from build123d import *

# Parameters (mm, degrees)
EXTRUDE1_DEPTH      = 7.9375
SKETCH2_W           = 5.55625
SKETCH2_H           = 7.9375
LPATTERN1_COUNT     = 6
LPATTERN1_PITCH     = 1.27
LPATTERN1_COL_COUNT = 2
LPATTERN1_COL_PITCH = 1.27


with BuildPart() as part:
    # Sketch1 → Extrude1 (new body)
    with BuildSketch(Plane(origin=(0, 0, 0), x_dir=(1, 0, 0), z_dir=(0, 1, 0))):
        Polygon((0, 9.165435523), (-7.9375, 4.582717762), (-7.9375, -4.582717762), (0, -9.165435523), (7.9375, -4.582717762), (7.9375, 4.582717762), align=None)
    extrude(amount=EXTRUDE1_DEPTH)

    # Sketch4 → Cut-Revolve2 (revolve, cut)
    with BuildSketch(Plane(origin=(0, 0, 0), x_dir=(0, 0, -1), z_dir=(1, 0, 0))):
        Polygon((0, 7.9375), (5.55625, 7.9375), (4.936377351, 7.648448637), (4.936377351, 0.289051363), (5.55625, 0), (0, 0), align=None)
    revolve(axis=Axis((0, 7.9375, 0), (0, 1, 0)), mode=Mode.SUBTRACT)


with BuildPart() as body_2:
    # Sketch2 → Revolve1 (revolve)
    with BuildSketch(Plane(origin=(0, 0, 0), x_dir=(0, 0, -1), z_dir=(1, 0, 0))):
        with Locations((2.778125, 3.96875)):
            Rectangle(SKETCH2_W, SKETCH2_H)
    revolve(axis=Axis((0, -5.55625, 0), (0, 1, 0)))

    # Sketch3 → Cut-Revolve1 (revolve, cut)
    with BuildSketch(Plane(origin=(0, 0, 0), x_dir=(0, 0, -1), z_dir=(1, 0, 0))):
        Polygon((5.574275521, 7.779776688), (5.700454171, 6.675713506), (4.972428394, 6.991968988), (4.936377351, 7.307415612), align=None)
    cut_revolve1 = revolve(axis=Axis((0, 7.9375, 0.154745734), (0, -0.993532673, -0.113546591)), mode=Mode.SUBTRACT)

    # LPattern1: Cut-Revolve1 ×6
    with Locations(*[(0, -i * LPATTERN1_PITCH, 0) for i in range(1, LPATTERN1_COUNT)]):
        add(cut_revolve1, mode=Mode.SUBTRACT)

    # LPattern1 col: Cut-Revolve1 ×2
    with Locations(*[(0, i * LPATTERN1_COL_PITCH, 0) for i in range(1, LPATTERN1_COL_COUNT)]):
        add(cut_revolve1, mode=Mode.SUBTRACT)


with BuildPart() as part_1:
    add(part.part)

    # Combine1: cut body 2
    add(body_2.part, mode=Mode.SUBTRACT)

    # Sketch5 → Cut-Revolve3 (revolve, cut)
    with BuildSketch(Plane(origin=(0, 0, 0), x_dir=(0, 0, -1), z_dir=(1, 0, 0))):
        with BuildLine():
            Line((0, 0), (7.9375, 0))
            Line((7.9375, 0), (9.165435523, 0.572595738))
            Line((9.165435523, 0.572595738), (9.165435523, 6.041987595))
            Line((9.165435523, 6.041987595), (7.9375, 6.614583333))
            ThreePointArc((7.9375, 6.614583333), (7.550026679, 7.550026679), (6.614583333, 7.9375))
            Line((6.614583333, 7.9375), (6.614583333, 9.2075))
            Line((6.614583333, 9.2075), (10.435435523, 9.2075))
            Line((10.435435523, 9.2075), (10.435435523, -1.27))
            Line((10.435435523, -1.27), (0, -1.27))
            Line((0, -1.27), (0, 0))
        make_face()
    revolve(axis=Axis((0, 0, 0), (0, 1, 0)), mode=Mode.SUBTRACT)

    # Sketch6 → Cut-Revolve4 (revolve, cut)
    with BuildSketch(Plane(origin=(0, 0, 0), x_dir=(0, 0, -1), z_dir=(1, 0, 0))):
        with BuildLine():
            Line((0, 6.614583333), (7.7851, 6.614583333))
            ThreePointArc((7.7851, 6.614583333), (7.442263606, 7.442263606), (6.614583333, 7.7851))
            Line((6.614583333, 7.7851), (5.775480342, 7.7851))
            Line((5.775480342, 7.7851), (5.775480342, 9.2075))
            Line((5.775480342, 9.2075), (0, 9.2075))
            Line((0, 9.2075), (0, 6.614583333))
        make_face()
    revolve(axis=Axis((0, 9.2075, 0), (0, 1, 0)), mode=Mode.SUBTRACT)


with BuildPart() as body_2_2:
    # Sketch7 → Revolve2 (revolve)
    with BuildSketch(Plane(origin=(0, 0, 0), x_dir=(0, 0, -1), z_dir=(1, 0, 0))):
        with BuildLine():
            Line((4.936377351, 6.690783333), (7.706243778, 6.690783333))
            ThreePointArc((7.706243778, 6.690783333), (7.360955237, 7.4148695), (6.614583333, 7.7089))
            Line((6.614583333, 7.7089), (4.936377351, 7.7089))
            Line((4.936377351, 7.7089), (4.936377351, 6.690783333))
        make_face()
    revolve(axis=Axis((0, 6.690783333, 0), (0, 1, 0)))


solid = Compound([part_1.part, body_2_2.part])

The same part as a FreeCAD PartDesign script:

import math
import FreeCAD as App
import Part
import Sketcher

V = App.Vector
Q = App.Units.Quantity


def add_polygon(sketch, points):
    """Adds a closed chain of lines whose ends are joined by coincident constraints."""
    first, n = sketch.GeometryCount, len(points)
    for a, b in zip(points, points[1:] + points[:1]):
        sketch.addGeometry(Part.LineSegment(App.Vector(*a, 0), App.Vector(*b, 0)), False)
    for i in range(n):
        sketch.addConstraint(Sketcher.Constraint("Coincident", first + i, 2, first + (i + 1) % n, 1))

doc = App.newDocument("Part")
params = doc.addObject("Spreadsheet::Sheet", "Params")
for row, (alias, value) in enumerate([
    ("pad1_length", "0.3125 in"),
    ("sketch2_width", "0.3125 in"),
    ("sketch2_height", "0.21875 in"),
    ("groove_angle", "360 deg"),
    ("sketch3_width", "0.3125 in"),
    ("sketch3_height", "0.21875 in"),
    ("revolution_angle", "360 deg"),
    ("sketch4_length", "0.03125 in"),
    ("groove2_angle", "360 deg"),
    ("linearpattern_pitch", "0.05 in"),
    ("linearpattern2_pitch", "0.05 in"),
    ("sketch5_width", "0.05 in"),
    ("sketch5_height", "0.3125 in"),
    ("groove3_angle", "360 deg"),
    ("sketch6_width", "0.056 in"),
    ("groove4_angle", "360 deg"),
    ("revolution2_angle", "360 deg"),
], start=1):
    params.set(f"A{row}", alias)
    params.set(f"B{row}", "=" + value)
    params.setAlias(f"B{row}", alias)

body = doc.addObject("PartDesign::Body", "Body")

# Sketch on XZ plane
sketch1 = body.newObject("Sketcher::SketchObject", "Sketch")
sketch1.AttachmentSupport = (doc.getObject("XZ_Plane"), [""])
sketch1.MapMode = "FlatFace"
add_polygon(sketch1, [(0, -9), (-8, -5), (-8, 5), (0, 9), (8, 5), (8, -5)])  # lines 0-5
sketch1.addConstraint(Sketcher.Constraint("Vertical", 1))
sketch1.addConstraint(Sketcher.Constraint("Vertical", 4))
sketch1.addConstraint(Sketcher.Constraint("Symmetric", 0, 2, 3, 2, -1, 1))
sketch1.addConstraint(Sketcher.Constraint("Symmetric", 2, 2, 5, 2, -1, 1))
sketch1.addConstraint(Sketcher.Constraint("PointOnObject", 2, 2, -2))
sketch1.addConstraint(Sketcher.Constraint("Parallel", 2, 5))
sketch1.addConstraint(Sketcher.Constraint("Horizontal", 1, 2, 3, 2))
sketch1.addConstraint(Sketcher.Constraint("Angle", 0, Q("150 deg")))
sketch1.addConstraint(Sketcher.Constraint("DistanceX", 0, 2, -1, 1, Q("0.3125 in")))
sketch1.addConstraint(Sketcher.Constraint("DistanceY", 1, 1, 1, 2, 9.165436))
pad1 = body.newObject("PartDesign::Pad", "Pad")
pad1.Profile = sketch1
pad1.setExpression("Length", "Params.pad1_length")
pad1.Reversed = True

# Sketch on YZ plane
sketch2 = body.newObject("Sketcher::SketchObject", "Sketch001")
sketch2.AttachmentSupport = (doc.getObject("YZ_Plane"), [""])
sketch2.MapMode = "FlatFace"
add_polygon(sketch2, [(7.9, -5.6), (7.9, 0), (0, 0), (0, -5.6), (0.3, -4.9), (7.6, -4.9)])  # lines 0-5
sketch2.addConstraint(Sketcher.Constraint("Vertical", 0))
sketch2.addConstraint(Sketcher.Constraint("Horizontal", 1))
sketch2.addConstraint(Sketcher.Constraint("Vertical", 2))
sketch2.addConstraint(Sketcher.Constraint("Horizontal", 4))
sketch2.addConstraint(Sketcher.Constraint("Coincident", 1, 2, -1, 1))
sketch2.addConstraint(Sketcher.Constraint("Horizontal", 2, 2, 5, 2))
sketch2.addConstraint(Sketcher.Constraint("Equal", 3, 5))
sketch2.addConstraint(Sketcher.Constraint("Angle", 3, Q("65 deg")))
sketch2.addConstraint(Sketcher.Constraint("DistanceX", 1, 2, 1, 1, Q("0.3125 in")))
sketch2.addConstraint(Sketcher.Constraint("DistanceY", 0, 1, 0, 2, Q("0.21875 in")))
sketch2.addConstraint(Sketcher.Constraint("DistanceX", 4, 1, 4, 2, 7.359397))
sketch2.setExpression("Constraints[14]", "Params.sketch2_width")
sketch2.setExpression("Constraints[15]", "Params.sketch2_height")
groove = body.newObject("PartDesign::Groove", "Groove")
groove.Profile = sketch2
groove.ReferenceAxis = (sketch2, ["H_Axis"])
groove.setExpression("Angle", "Params.groove_angle")
body2 = doc.addObject("PartDesign::Body", "Body001")

# Sketch on YZ plane
sketch3 = body2.newObject("Sketcher::SketchObject", "Sketch002")
sketch3.AttachmentSupport = (doc.getObject("YZ_Plane001"), [""])
sketch3.MapMode = "FlatFace"
add_polygon(sketch3, [(8, 0), (0, 0), (0, -6), (8, -6)])  # lines 0-3
sketch3.addConstraint(Sketcher.Constraint("Horizontal", 0))
sketch3.addConstraint(Sketcher.Constraint("Vertical", 1))
sketch3.addConstraint(Sketcher.Constraint("Horizontal", 2))
sketch3.addConstraint(Sketcher.Constraint("Vertical", 3))
sketch3.addConstraint(Sketcher.Constraint("Coincident", 0, 2, -1, 1))
sketch3.addConstraint(Sketcher.Constraint("DistanceX", 0, 2, 0, 1, Q("0.3125 in")))
sketch3.addConstraint(Sketcher.Constraint("DistanceY", 1, 2, 1, 1, Q("0.21875 in")))
sketch3.setExpression("Constraints[9]", "Params.sketch3_width")
sketch3.setExpression("Constraints[10]", "Params.sketch3_height")
revolution = body2.newObject("PartDesign::Revolution", "Revolution")
revolution.Profile = sketch3
revolution.ReferenceAxis = (sketch3, ["H_Axis"])
revolution.setExpression("Angle", "Params.revolution_angle")

# Sketch on YZ plane
sketch4 = body2.newObject("Sketcher::SketchObject", "Sketch003")
sketch4.AttachmentSupport = (doc.getObject("YZ_Plane001"), [""])
sketch4.MapMode = "FlatFace"
add_polygon(sketch4, [(6.68, -5.7), (7.78, -5.57), (7.31, -4.94), (6.99, -4.97)])  # lines 0-3
sketch4.addGeometry(Part.LineSegment(V(7.14, 0.06, 0), V(6.03, -0.06, 0)), True)  # axis
sketch4.addConstraint(Sketcher.Constraint("Parallel", 0, 2))
sketch4.addConstraint(Sketcher.Constraint("Parallel", 2, 4))
sketch4.addConstraint(Sketcher.Constraint("Equal", 1, 3))
sketch4.addConstraint(Sketcher.Constraint("Equal", 0, 4))
sketch4.addConstraint(Sketcher.Constraint("Distance", 1, Q("0.03125 in")))
sketch4.addConstraint(Sketcher.Constraint("Distance", 2, Q("0.0125 in")))
sketch4.addConstraint(Sketcher.Constraint("DistanceY", 0, 2, 1, 2, 0.637898))
sketch4.addConstraint(Sketcher.Constraint("Distance", 0, 1.11125))
sketch4.addConstraint(Sketcher.Constraint("DistanceX", -1, 1, 2, 2, 6.991969))
sketch4.addConstraint(Sketcher.Constraint("DistanceY", 2, 2, -1, 1, 4.972428))
sketch4.addConstraint(Sketcher.Constraint("DistanceY", -1, 1, 4, 1, 0.063089))
sketch4.addConstraint(Sketcher.Constraint("DistanceX", 4, 1, 1, 2, 0.171909))
sketch4.setExpression("Constraints[8]", "Params.sketch4_length")
groove2 = body2.newObject("PartDesign::Groove", "Groove001")
groove2.Profile = sketch4
groove2.ReferenceAxis = (sketch4, ["Axis0"])
groove2.setExpression("Angle", "Params.groove2_angle")
doc.recompute()

linearpattern = body2.newObject("PartDesign::LinearPattern", "LinearPattern")
linearpattern.Originals = [groove2]
linearpattern.Direction = (doc.getObject("Y_Axis001"), [""])
linearpattern.Mode = "offset"
linearpattern.setExpression("Offset", "Params.linearpattern_pitch")
linearpattern.Occurrences = 6
linearpattern.Reversed = True
body2.Tip = linearpattern
doc.recompute()

linearpattern2 = body2.newObject("PartDesign::LinearPattern", "LinearPattern001")
linearpattern2.Originals = [groove2]
linearpattern2.Direction = (doc.getObject("Y_Axis001"), [""])
linearpattern2.Mode = "offset"
linearpattern2.setExpression("Offset", "Params.linearpattern2_pitch")
linearpattern2.Occurrences = 2
body2.Tip = linearpattern2
doc.recompute()

boolean = body.newObject("PartDesign::Boolean", "Boolean")
boolean.Type = "Cut"
boolean.addObjects([body2])

# Sketch on YZ plane
sketch5 = body.newObject("Sketcher::SketchObject", "Sketch004")
sketch5.AttachmentSupport = (doc.getObject("YZ_Plane"), [""])
sketch5.MapMode = "FlatFace"
sketch5.addGeometry(Part.LineSegment(V(0, -7.9, 0), V(0, 0, 0)), False)
sketch5.addGeometry(Part.LineSegment(V(0, 0, 0), V(-1.3, 0, 0)), False)
sketch5.addGeometry(Part.LineSegment(V(-1.3, 0, 0), V(-1.3, -10.4, 0)), False)
sketch5.addGeometry(Part.LineSegment(V(-1.3, -10.4, 0), V(9.2, -10.4, 0)), False)
sketch5.addGeometry(Part.LineSegment(V(9.2, -10.4, 0), V(9.2, -6.6, 0)), False)
sketch5.addGeometry(Part.LineSegment(V(9.2, -6.6, 0), V(7.9, -6.6, 0)), False)
sketch5.addGeometry(Part.ArcOfCircle(Part.Circle(V(6.6, -6.6, 0), V(0, 0, 1), 1.3), math.radians(-90), math.radians(0)), False)
sketch5.addGeometry(Part.LineSegment(V(6.6, -7.9, 0), V(6, -9.2, 0)), False)
sketch5.addGeometry(Part.LineSegment(V(6, -9.2, 0), V(0.6, -9.2, 0)), False)
sketch5.addGeometry(Part.LineSegment(V(0.6, -9.2, 0), V(0, -7.9, 0)), False)
sketch5.addConstraint(Sketcher.Constraint("Coincident", 0, 2, 1, 1))
sketch5.addConstraint(Sketcher.Constraint("Coincident", 1, 2, 2, 1))
sketch5.addConstraint(Sketcher.Constraint("Coincident", 2, 2, 3, 1))
sketch5.addConstraint(Sketcher.Constraint("Coincident", 3, 2, 4, 1))
sketch5.addConstraint(Sketcher.Constraint("Coincident", 4, 2, 5, 1))
sketch5.addConstraint(Sketcher.Constraint("Coincident", 5, 2, 6, 2))
sketch5.addConstraint(Sketcher.Constraint("Coincident", 6, 1, 7, 1))
sketch5.addConstraint(Sketcher.Constraint("Coincident", 7, 2, 8, 1))
sketch5.addConstraint(Sketcher.Constraint("Coincident", 8, 2, 9, 1))
sketch5.addConstraint(Sketcher.Constraint("Coincident", 9, 2, 0, 1))
sketch5.addConstraint(Sketcher.Constraint("Vertical", 0))
sketch5.addConstraint(Sketcher.Constraint("Horizontal", 1))
sketch5.addConstraint(Sketcher.Constraint("Vertical", 2))
sketch5.addConstraint(Sketcher.Constraint("Horizontal", 3))
sketch5.addConstraint(Sketcher.Constraint("Vertical", 4))
sketch5.addConstraint(Sketcher.Constraint("Horizontal", 5))
sketch5.addConstraint(Sketcher.Constraint("Horizontal", 8))
sketch5.addConstraint(Sketcher.Constraint("Coincident", 0, 2, -1, 1))
sketch5.addConstraint(Sketcher.Constraint("Horizontal", 6, 3, 4, 2))
sketch5.addConstraint(Sketcher.Constraint("Horizontal", 6, 1, 9, 2))
sketch5.addConstraint(Sketcher.Constraint("Equal", 1, 5))
sketch5.addConstraint(Sketcher.Constraint("Equal", 7, 9))
sketch5.addConstraint(Sketcher.Constraint("Angle", 7, Q("-115 deg")))
sketch5.addConstraint(Sketcher.Constraint("DistanceX", 1, 2, 1, 1, Q("0.05 in")))
sketch5.addConstraint(Sketcher.Constraint("DistanceY", 0, 1, 0, 2, Q("0.3125 in")))
sketch5.addConstraint(Sketcher.Constraint("DistanceY", 3, 2, 7, 2, Q("0.05 in")))
sketch5.addConstraint(Sketcher.Constraint("DistanceX", 3, 1, 3, 2, Q("0.4125 in")))
sketch5.addConstraint(Sketcher.Constraint("Radius", 6, 1.322917))
sketch5.addConstraint(Sketcher.Constraint("DistanceX", 8, 2, 8, 1, 5.469392))
sketch5.addConstraint(Sketcher.Constraint("DistanceY", 2, 2, 2, 1, 10.435436))
sketch5.setExpression("Constraints[23]", "Params.sketch5_width")
sketch5.setExpression("Constraints[24]", "Params.sketch5_height")
groove3 = body.newObject("PartDesign::Groove", "Groove002")
groove3.Profile = sketch5
groove3.ReferenceAxis = (sketch5, ["H_Axis"])
groove3.setExpression("Angle", "Params.groove3_angle")

# Sketch on YZ plane
sketch6 = body.newObject("Sketcher::SketchObject", "Sketch005")
sketch6.AttachmentSupport = (doc.getObject("YZ_Plane"), [""])
sketch6.MapMode = "FlatFace"
sketch6.addGeometry(Part.LineSegment(V(6.6, 0, 0), V(6.6, -7.8, 0)), False)
sketch6.addGeometry(Part.ArcOfCircle(Part.Circle(V(6.6, -6.6, 0), V(0, 0, 1), 1.2), math.radians(-90), math.radians(0)), False)
sketch6.addGeometry(Part.LineSegment(V(7.8, -6.6, 0), V(7.8, -5.8, 0)), False)
sketch6.addGeometry(Part.LineSegment(V(7.8, -5.8, 0), V(9.2, -5.8, 0)), False)
sketch6.addGeometry(Part.LineSegment(V(9.2, -5.8, 0), V(9.2, 0, 0)), False)
sketch6.addGeometry(Part.LineSegment(V(9.2, 0, 0), V(6.6, 0, 0)), False)
sketch6.addConstraint(Sketcher.Constraint("Coincident", 0, 2, 1, 1))
sketch6.addConstraint(Sketcher.Constraint("Tangent", 1, 2, 2, 1))
sketch6.addConstraint(Sketcher.Constraint("Coincident", 2, 2, 3, 1))
sketch6.addConstraint(Sketcher.Constraint("Coincident", 3, 2, 4, 1))
sketch6.addConstraint(Sketcher.Constraint("Coincident", 4, 2, 5, 1))
sketch6.addConstraint(Sketcher.Constraint("Coincident", 5, 2, 0, 1))
sketch6.addConstraint(Sketcher.Constraint("Vertical", 0))
sketch6.addConstraint(Sketcher.Constraint("Vertical", 2))
sketch6.addConstraint(Sketcher.Constraint("Horizontal", 3))
sketch6.addConstraint(Sketcher.Constraint("Vertical", 4))
sketch6.addConstraint(Sketcher.Constraint("Horizontal", 5))
sketch6.addConstraint(Sketcher.Constraint("PointOnObject", 4, 2, -1))
sketch6.addConstraint(Sketcher.Constraint("Vertical", 1, 3, 0, 2))
sketch6.addConstraint(Sketcher.Constraint("DistanceX", 3, 1, 3, 2, Q("0.056 in")))
sketch6.addConstraint(Sketcher.Constraint("DistanceY", 0, 2, 0, 1, Q("0.3065 in")))
sketch6.addConstraint(Sketcher.Constraint("DistanceX", -1, 1, 1, 2, Q("0.3065 in")))
sketch6.addConstraint(Sketcher.Constraint("Radius", 1, 1.170517))
sketch6.addConstraint(Sketcher.Constraint("DistanceY", 4, 1, 4, 2, 5.77548))
sketch6.setExpression("Constraints[13]", "Params.sketch6_width")
groove4 = body.newObject("PartDesign::Groove", "Groove003")
groove4.Profile = sketch6
groove4.ReferenceAxis = (sketch6, ["H_Axis"])
groove4.setExpression("Angle", "Params.groove4_angle")
body3 = doc.addObject("PartDesign::Body", "Body002")

# Sketch on YZ plane
sketch7 = body3.newObject("Sketcher::SketchObject", "Sketch006")
sketch7.AttachmentSupport = (doc.getObject("YZ_Plane002"), [""])
sketch7.MapMode = "FlatFace"
sketch7.addGeometry(Part.LineSegment(V(6.7, -4.9, 0), V(6.7, -7.7, 0)), False)
sketch7.addGeometry(Part.ArcOfCircle(Part.Circle(V(6.6, -6.6, 0), V(0, 0, 1), 1.1), math.radians(-86), math.radians(0)), False)
sketch7.addGeometry(Part.LineSegment(V(7.7, -6.6, 0), V(7.7, -4.9, 0)), False)
sketch7.addGeometry(Part.LineSegment(V(7.7, -4.9, 0), V(6.7, -4.9, 0)), False)
sketch7.addConstraint(Sketcher.Constraint("Coincident", 0, 2, 1, 1))
sketch7.addConstraint(Sketcher.Constraint("Tangent", 1, 2, 2, 1))
sketch7.addConstraint(Sketcher.Constraint("Coincident", 2, 2, 3, 1))
sketch7.addConstraint(Sketcher.Constraint("Coincident", 3, 2, 0, 1))
sketch7.addConstraint(Sketcher.Constraint("Vertical", 0))
sketch7.addConstraint(Sketcher.Constraint("Vertical", 2))
sketch7.addConstraint(Sketcher.Constraint("Horizontal", 3))
sketch7.addConstraint(Sketcher.Constraint("DistanceX", 1, 3, 0, 2, Q("0.003 in")))
sketch7.addConstraint(Sketcher.Constraint("DistanceX", -1, 1, 1, 2, Q("0.3035 in")))
sketch7.addConstraint(Sketcher.Constraint("Radius", 1, 1.094317))
sketch7.addConstraint(Sketcher.Constraint("DistanceY", 0, 2, 0, 1, 2.769866))
sketch7.addConstraint(Sketcher.Constraint("DistanceY", 1, 3, -1, 1, 6.614583))
revolution2 = body3.newObject("PartDesign::Revolution", "Revolution001")
revolution2.Profile = sketch7
revolution2.ReferenceAxis = (sketch7, ["H_Axis"])
revolution2.setExpression("Angle", "Params.revolution2_angle")

doc.recompute()
